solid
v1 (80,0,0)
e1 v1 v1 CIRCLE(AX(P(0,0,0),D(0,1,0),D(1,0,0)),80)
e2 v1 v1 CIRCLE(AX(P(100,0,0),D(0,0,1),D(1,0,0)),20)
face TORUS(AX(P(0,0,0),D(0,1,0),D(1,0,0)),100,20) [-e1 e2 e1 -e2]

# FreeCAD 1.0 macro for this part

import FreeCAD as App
import Part
import Sketcher

V = App.Vector
Q = App.Units.Quantity

doc = App.newDocument("Part")
body = doc.addObject("PartDesign::Body", "Body")

# Sketch on XY plane
sketch1 = body.newObject("Sketcher::SketchObject", "Sketch")
sketch1.AttachmentSupport = (doc.getObject("XY_Plane"), [""])
sketch1.MapMode = "FlatFace"
sketch1.addGeometry(Part.Circle(V(100, 0, 0), V(0, 0, 1), 20), False)
sketch1.addConstraint(Sketcher.Constraint("PointOnObject", 0, 3, -1))
sketch1.addConstraint(Sketcher.Constraint("Diameter", 0, Q("40 mm")))
sketch1.addConstraint(Sketcher.Constraint("DistanceX", -1, 1, 0, 3, Q("100 mm")))

# Sketch on XZ plane
sketch2 = body.newObject("Sketcher::SketchObject", "Sketch001")
sketch2.AttachmentSupport = (doc.getObject("XZ_Plane"), [""])
sketch2.MapMode = "FlatFace"
sketch2.addGeometry(Part.Circle(V(0, 0, 0), V(0, 0, 1), 100), False)
sketch2.addConstraint(Sketcher.Constraint("Coincident", 0, 3, -1, 1))
sketch2.addConstraint(Sketcher.Constraint("Diameter", 0, Q("200 mm")))
doc.recompute()

additivepipe = body.newObject("PartDesign::AdditivePipe", "AdditivePipe")
additivepipe.Profile = sketch1
additivepipe.Spine = (sketch2, ["Edge1"])

doc.recompute()
